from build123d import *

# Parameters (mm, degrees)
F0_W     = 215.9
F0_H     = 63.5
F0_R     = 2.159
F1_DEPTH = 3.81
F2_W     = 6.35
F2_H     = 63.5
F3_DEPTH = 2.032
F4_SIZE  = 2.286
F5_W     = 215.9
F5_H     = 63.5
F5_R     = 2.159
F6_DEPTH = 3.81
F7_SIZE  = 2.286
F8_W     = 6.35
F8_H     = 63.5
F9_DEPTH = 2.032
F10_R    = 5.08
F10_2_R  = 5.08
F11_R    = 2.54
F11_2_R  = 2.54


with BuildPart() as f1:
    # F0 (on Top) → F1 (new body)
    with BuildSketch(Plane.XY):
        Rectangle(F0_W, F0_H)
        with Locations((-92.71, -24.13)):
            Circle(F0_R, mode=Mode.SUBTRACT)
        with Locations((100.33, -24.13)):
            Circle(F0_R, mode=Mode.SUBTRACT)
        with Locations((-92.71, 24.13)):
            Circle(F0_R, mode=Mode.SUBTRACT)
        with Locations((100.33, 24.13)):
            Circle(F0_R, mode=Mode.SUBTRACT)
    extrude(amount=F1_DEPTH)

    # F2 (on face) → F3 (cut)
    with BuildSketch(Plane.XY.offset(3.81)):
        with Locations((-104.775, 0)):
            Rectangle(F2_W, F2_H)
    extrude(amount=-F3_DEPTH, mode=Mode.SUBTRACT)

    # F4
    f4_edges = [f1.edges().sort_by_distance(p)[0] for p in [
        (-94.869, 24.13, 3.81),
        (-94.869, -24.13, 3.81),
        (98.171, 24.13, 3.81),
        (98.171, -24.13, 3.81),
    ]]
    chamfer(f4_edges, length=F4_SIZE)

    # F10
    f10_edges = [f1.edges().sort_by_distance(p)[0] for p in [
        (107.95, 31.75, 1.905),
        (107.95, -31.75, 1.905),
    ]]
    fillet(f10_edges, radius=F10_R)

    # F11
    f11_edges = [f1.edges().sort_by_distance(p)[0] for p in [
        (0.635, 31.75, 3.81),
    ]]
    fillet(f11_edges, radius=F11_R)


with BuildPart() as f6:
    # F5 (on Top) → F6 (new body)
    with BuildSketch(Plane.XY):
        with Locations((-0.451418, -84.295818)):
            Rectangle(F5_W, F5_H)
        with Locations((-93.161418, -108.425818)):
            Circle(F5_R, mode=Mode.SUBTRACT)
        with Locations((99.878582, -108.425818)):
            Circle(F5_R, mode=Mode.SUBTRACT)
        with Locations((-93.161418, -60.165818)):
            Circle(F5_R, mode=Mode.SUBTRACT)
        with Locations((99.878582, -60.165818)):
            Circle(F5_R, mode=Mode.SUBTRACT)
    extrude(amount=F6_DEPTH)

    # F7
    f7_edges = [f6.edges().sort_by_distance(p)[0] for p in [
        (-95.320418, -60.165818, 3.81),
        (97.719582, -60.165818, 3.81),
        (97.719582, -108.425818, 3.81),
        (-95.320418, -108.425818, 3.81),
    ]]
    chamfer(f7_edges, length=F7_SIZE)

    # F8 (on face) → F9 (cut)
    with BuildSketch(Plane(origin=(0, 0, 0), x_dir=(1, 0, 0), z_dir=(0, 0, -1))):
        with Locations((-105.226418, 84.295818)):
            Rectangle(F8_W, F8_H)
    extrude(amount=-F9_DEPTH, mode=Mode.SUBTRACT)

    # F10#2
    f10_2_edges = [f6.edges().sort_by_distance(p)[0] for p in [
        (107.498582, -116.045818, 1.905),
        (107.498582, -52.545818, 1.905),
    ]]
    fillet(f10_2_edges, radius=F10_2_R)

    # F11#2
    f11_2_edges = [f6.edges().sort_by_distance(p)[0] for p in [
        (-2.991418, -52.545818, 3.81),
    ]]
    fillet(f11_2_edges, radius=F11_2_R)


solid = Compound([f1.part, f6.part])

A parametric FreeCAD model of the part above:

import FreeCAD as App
import Part
import Sketcher
from FreeCAD import Vector
Q = App.Units.Quantity


def edges_at(feature, points):
    """Names of the edges that pass closest to the given points."""
    edges = feature.Shape.Edges
    near = lambda p: min(range(len(edges)), key=lambda i: edges[i].distToShape(Part.Vertex(*p))[0])
    return sorted({f"Edge{near(p) + 1}" for p in points})

doc = App.newDocument("Part")
body = doc.addObject("PartDesign::Body", "Body")

# Sketch on XY plane
sketch1 = doc.addObject("Sketcher::SketchObject", "Sketch")
body.addObject(sketch1)
sketch1.AttachmentSupport = (doc.XY_Plane, [""])
sketch1.MapMode = "FlatFace"
sketch1.addGeometry(Part.LineSegment(Vector(-108, 31.8, 0), Vector(-108, -31.8, 0)), False)
sketch1.addGeometry(Part.LineSegment(Vector(-108, -31.8, 0), Vector(108, -31.8, 0)), False)
sketch1.addGeometry(Part.LineSegment(Vector(108, -31.8, 0), Vector(108, 31.8, 0)), False)
sketch1.addGeometry(Part.LineSegment(Vector(108, 31.8, 0), Vector(-108, 31.8, 0)), False)
sketch1.addGeometry(Part.Circle(Vector(-92.7, -24.1, 0), Vector(0, 0, 1), 2.2), False)
sketch1.addGeometry(Part.Circle(Vector(100.3, -24.1, 0), Vector(0, 0, 1), 2.2), False)
sketch1.addGeometry(Part.Circle(Vector(-92.7, 24.1, 0), Vector(0, 0, 1), 2.2), False)
sketch1.addGeometry(Part.Circle(Vector(100.3, 24.1, 0), Vector(0, 0, 1), 2.2), False)
sketch1.addConstraint(Sketcher.Constraint("Coincident", 0, 2, 1, 1))
sketch1.addConstraint(Sketcher.Constraint("Coincident", 1, 2, 2, 1))
sketch1.addConstraint(Sketcher.Constraint("Coincident", 2, 2, 3, 1))
sketch1.addConstraint(Sketcher.Constraint("Coincident", 3, 2, 0, 1))
sketch1.addConstraint(Sketcher.Constraint("Vertical", 0))
sketch1.addConstraint(Sketcher.Constraint("Horizontal", 1))
sketch1.addConstraint(Sketcher.Constraint("Vertical", 2))
sketch1.addConstraint(Sketcher.Constraint("Horizontal", 3))
sketch1.addConstraint(Sketcher.Constraint("Equal", 4, 5))
sketch1.addConstraint(Sketcher.Constraint("Equal", 5, 6))
sketch1.addConstraint(Sketcher.Constraint("Equal", 6, 7))
sketch1.addConstraint(Sketcher.Constraint("Symmetric", 0, 2, 2, 2, -1, 1))
sketch1.addConstraint(Sketcher.Constraint("Symmetric", 4, 3, 6, 3, -1))
sketch1.addConstraint(Sketcher.Constraint("Symmetric", 5, 3, 7, 3, -1))
sketch1.addConstraint(Sketcher.Constraint("Horizontal", 4, 3, 5, 3))
sketch1.addConstraint(Sketcher.Constraint("Diameter", 4, Q("0.17 in")))
sketch1.addConstraint(Sketcher.Constraint("DistanceX", 1, 1, 1, 2, Q("8.5 in")))
sketch1.addConstraint(Sketcher.Constraint("DistanceY", 0, 2, 0, 1, Q("2.5 in")))
sketch1.addConstraint(Sketcher.Constraint("DistanceX", 4, 3, 5, 3, Q("7.6 in")))
sketch1.addConstraint(Sketcher.Constraint("DistanceY", 4, 3, 6, 3, Q("1.9 in")))
sketch1.addConstraint(Sketcher.Constraint("DistanceX", 0, 2, 4, 3, Q("0.6 in")))
pad1 = doc.addObject("PartDesign::Pad", "Pad")
body.addObject(pad1)
pad1.Profile = sketch1
pad1.Length = Q("0.15 in")

# Sketch on XY plane
sketch2 = doc.addObject("Sketcher::SketchObject", "Sketch001")
body.addObject(sketch2)
sketch2.AttachmentSupport = (doc.XY_Plane, [""])
sketch2.MapMode = "FlatFace"
sketch2.AttachmentOffset = App.Placement(Vector(0, 0, 0.15 * 25.4), App.Rotation())
sketch2.addGeometry(Part.LineSegment(Vector(-108, 32, 0), Vector(-108, -32, 0)), False)
sketch2.addGeometry(Part.LineSegment(Vector(-108, -32, 0), Vector(-102, -32, 0)), False)
sketch2.addGeometry(Part.LineSegment(Vector(-102, -32, 0), Vector(-102, 32, 0)), False)
sketch2.addGeometry(Part.LineSegment(Vector(-102, 32, 0), Vector(-108, 32, 0)), False)
sketch2.addConstraint(Sketcher.Constraint("Coincident", 0, 2, 1, 1))
sketch2.addConstraint(Sketcher.Constraint("Coincident", 1, 2, 2, 1))
sketch2.addConstraint(Sketcher.Constraint("Coincident", 2, 2, 3, 1))
sketch2.addConstraint(Sketcher.Constraint("Coincident", 3, 2, 0, 1))
sketch2.addConstraint(Sketcher.Constraint("Vertical", 0))
sketch2.addConstraint(Sketcher.Constraint("Horizontal", 1))
sketch2.addConstraint(Sketcher.Constraint("Vertical", 2))
sketch2.addConstraint(Sketcher.Constraint("Horizontal", 3))
sketch2.addConstraint(Sketcher.Constraint("DistanceY", 0, 2, 0, 1, Q("2.5 in")))
sketch2.addConstraint(Sketcher.Constraint("DistanceX", 1, 2, -1, 1, Q("4 in")))
sketch2.addConstraint(Sketcher.Constraint("DistanceX", 1, 1, 1, 2, Q("0.25 in")))
sketch2.addConstraint(Sketcher.Constraint("DistanceY", 0, 2, -1, 1, Q("1.25 in")))
pocket1 = doc.addObject("PartDesign::Pocket", "Pocket")
body.addObject(pocket1)
pocket1.Profile = sketch2
pocket1.Length = Q("0.08 in")
doc.recompute()

chamfer = doc.addObject("PartDesign::Chamfer", "Chamfer")
body.addObject(chamfer)
chamfer.Base = (pocket1, edges_at(pocket1, [
    (-94.869, 24.13, 3.81),
    (-94.869, -24.13, 3.81),
    (98.171, 24.13, 3.81),
    (98.171, -24.13, 3.81),
]))
chamfer.Size = Q("0.09 in")
doc.recompute()

fillet = doc.addObject("PartDesign::Fillet", "Fillet")
body.addObject(fillet)
fillet.Base = (chamfer, edges_at(chamfer, [(107.95, 31.75, 1.905), (107.95, -31.75, 1.905)]))
fillet.Radius = Q("0.2 in")
doc.recompute()

fillet2 = doc.addObject("PartDesign::Fillet", "Fillet001")
body.addObject(fillet2)
fillet2.Base = (fillet, edges_at(fillet, [(0.635, 31.75, 3.81)]))
fillet2.Radius = Q("0.1 in")
body2 = doc.addObject("PartDesign::Body", "Body001")

# Sketch on XY plane
sketch3 = doc.addObject("Sketcher::SketchObject", "Sketch002")
body2.addObject(sketch3)
sketch3.AttachmentSupport = (doc.getObject("XY_Plane001"), [""])
sketch3.MapMode = "FlatFace"
sketch3.addGeometry(Part.LineSegment(Vector(-108.4, -52.5, 0), Vector(-108.4, -116, 0)), False)
sketch3.addGeometry(Part.LineSegment(Vector(-108.4, -116, 0), Vector(107.5, -116, 0)), False)
sketch3.addGeometry(Part.LineSegment(Vector(107.5, -116, 0), Vector(107.5, -52.5, 0)), False)
sketch3.addGeometry(Part.LineSegment(Vector(107.5, -52.5, 0), Vector(-108.4, -52.5, 0)), False)
sketch3.addGeometry(Part.Circle(Vector(-93.2, -108.4, 0), Vector(0, 0, 1), 2.2), False)
sketch3.addGeometry(Part.Circle(Vector(99.9, -108.4, 0), Vector(0, 0, 1), 2.2), False)
sketch3.addGeometry(Part.Circle(Vector(-93.2, -60.2, 0), Vector(0, 0, 1), 2.2), False)
sketch3.addGeometry(Part.Circle(Vector(99.9, -60.2, 0), Vector(0, 0, 1), 2.2), False)
sketch3.addConstraint(Sketcher.Constraint("Coincident", 0, 2, 1, 1))
sketch3.addConstraint(Sketcher.Constraint("Coincident", 1, 2, 2, 1))
sketch3.addConstraint(Sketcher.Constraint("Coincident", 2, 2, 3, 1))
sketch3.addConstraint(Sketcher.Constraint("Coincident", 3, 2, 0, 1))
sketch3.addConstraint(Sketcher.Constraint("Vertical", 0))
sketch3.addConstraint(Sketcher.Constraint("Horizontal", 1))
sketch3.addConstraint(Sketcher.Constraint("Vertical", 2))
sketch3.addConstraint(Sketcher.Constraint("Horizontal", 3))
sketch3.addConstraint(Sketcher.Constraint("Equal", 4, 5))
sketch3.addConstraint(Sketcher.Constraint("Equal", 5, 6))
sketch3.addConstraint(Sketcher.Constraint("Equal", 6, 7))
sketch3.addConstraint(Sketcher.Constraint("Horizontal", 4, 3, 5, 3))
sketch3.addConstraint(Sketcher.Constraint("Horizontal", 6, 3, 7, 3))
sketch3.addConstraint(Sketcher.Constraint("Vertical", 4, 3, 6, 3))
sketch3.addConstraint(Sketcher.Constraint("Vertical", 5, 3, 7, 3))
sketch3.addConstraint(Sketcher.Constraint("Diameter", 4, Q("0.17 in")))
sketch3.addConstraint(Sketcher.Constraint("DistanceX", 1, 1, 1, 2, Q("8.5 in")))
sketch3.addConstraint(Sketcher.Constraint("DistanceY", 0, 2, 0, 1, Q("2.5 in")))
sketch3.addConstraint(Sketcher.Constraint("DistanceX", 4, 3, 5, 3, Q("7.6 in")))
sketch3.addConstraint(Sketcher.Constraint("DistanceY", 4, 3, 6, 3, Q("1.9 in")))
sketch3.addConstraint(Sketcher.Constraint("DistanceX", 0, 2, 4, 3, Q("0.6 in")))
sketch3.addConstraint(Sketcher.Constraint("DistanceY", 0, 2, 4, 3, Q("0.3 in")))
sketch3.addConstraint(Sketcher.Constraint("DistanceY", 4, 3, -1, 1, 108.425818))
sketch3.addConstraint(Sketcher.Constraint("DistanceX", -1, 1, 5, 3, 99.878582))
pad2 = doc.addObject("PartDesign::Pad", "Pad001")
body2.addObject(pad2)
pad2.Profile = sketch3
pad2.Length = Q("0.15 in")
doc.recompute()

chamfer2 = doc.addObject("PartDesign::Chamfer", "Chamfer001")
body2.addObject(chamfer2)
chamfer2.Base = (pad2, edges_at(pad2, [
    (-95.32, -60.166, 3.81),
    (97.72, -60.166, 3.81),
    (97.72, -108.426, 3.81),
    (-95.32, -108.426, 3.81),
]))
chamfer2.Size = Q("0.09 in")

# Sketch on XY plane
sketch4 = doc.addObject("Sketcher::SketchObject", "Sketch003")
body2.addObject(sketch4)
sketch4.AttachmentSupport = (doc.getObject("XY_Plane001"), [""])
sketch4.MapMode = "FlatFace"
sketch4.addGeometry(Part.LineSegment(Vector(-108, -116, 0), Vector(-108, -53, 0)), False)
sketch4.addGeometry(Part.LineSegment(Vector(-108, -53, 0), Vector(-102, -53, 0)), False)
sketch4.addGeometry(Part.LineSegment(Vector(-102, -53, 0), Vector(-102, -116, 0)), False)
sketch4.addGeometry(Part.LineSegment(Vector(-102, -116, 0), Vector(-108, -116, 0)), False)
sketch4.addConstraint(Sketcher.Constraint("Coincident", 0, 2, 1, 1))
sketch4.addConstraint(Sketcher.Constraint("Coincident", 1, 2, 2, 1))
sketch4.addConstraint(Sketcher.Constraint("Coincident", 2, 2, 3, 1))
sketch4.addConstraint(Sketcher.Constraint("Coincident", 3, 2, 0, 1))
sketch4.addConstraint(Sketcher.Constraint("Vertical", 0))
sketch4.addConstraint(Sketcher.Constraint("Horizontal", 1))
sketch4.addConstraint(Sketcher.Constraint("Vertical", 2))
sketch4.addConstraint(Sketcher.Constraint("Horizontal", 3))
sketch4.addConstraint(Sketcher.Constraint("DistanceY", 0, 1, 0, 2, Q("2.5 in")))
sketch4.addConstraint(Sketcher.Constraint("DistanceX", 1, 1, 1, 2, Q("0.25 in")))
sketch4.addConstraint(Sketcher.Constraint("DistanceX", 0, 2, -1, 1, 108.401418))
sketch4.addConstraint(Sketcher.Constraint("DistanceY", 0, 2, -1, 1, 52.545818))
pocket2 = doc.addObject("PartDesign::Pocket", "Pocket001")
body2.addObject(pocket2)
pocket2.Profile = sketch4
pocket2.Length = Q("0.08 in")
pocket2.Reversed = True
doc.recompute()

fillet3 = doc.addObject("PartDesign::Fillet", "Fillet002")
body2.addObject(fillet3)
fillet3.Base = (pocket2, edges_at(pocket2, [(107.499, -116.046, 1.905), (107.499, -52.546, 1.905)]))
fillet3.Radius = Q("0.2 in")
doc.recompute()

fillet4 = doc.addObject("PartDesign::Fillet", "Fillet003")
body2.addObject(fillet4)
fillet4.Base = (fillet3, edges_at(fillet3, [(-2.991, -52.546, 3.81)]))
fillet4.Radius = Q("0.1 in")

doc.recompute()
